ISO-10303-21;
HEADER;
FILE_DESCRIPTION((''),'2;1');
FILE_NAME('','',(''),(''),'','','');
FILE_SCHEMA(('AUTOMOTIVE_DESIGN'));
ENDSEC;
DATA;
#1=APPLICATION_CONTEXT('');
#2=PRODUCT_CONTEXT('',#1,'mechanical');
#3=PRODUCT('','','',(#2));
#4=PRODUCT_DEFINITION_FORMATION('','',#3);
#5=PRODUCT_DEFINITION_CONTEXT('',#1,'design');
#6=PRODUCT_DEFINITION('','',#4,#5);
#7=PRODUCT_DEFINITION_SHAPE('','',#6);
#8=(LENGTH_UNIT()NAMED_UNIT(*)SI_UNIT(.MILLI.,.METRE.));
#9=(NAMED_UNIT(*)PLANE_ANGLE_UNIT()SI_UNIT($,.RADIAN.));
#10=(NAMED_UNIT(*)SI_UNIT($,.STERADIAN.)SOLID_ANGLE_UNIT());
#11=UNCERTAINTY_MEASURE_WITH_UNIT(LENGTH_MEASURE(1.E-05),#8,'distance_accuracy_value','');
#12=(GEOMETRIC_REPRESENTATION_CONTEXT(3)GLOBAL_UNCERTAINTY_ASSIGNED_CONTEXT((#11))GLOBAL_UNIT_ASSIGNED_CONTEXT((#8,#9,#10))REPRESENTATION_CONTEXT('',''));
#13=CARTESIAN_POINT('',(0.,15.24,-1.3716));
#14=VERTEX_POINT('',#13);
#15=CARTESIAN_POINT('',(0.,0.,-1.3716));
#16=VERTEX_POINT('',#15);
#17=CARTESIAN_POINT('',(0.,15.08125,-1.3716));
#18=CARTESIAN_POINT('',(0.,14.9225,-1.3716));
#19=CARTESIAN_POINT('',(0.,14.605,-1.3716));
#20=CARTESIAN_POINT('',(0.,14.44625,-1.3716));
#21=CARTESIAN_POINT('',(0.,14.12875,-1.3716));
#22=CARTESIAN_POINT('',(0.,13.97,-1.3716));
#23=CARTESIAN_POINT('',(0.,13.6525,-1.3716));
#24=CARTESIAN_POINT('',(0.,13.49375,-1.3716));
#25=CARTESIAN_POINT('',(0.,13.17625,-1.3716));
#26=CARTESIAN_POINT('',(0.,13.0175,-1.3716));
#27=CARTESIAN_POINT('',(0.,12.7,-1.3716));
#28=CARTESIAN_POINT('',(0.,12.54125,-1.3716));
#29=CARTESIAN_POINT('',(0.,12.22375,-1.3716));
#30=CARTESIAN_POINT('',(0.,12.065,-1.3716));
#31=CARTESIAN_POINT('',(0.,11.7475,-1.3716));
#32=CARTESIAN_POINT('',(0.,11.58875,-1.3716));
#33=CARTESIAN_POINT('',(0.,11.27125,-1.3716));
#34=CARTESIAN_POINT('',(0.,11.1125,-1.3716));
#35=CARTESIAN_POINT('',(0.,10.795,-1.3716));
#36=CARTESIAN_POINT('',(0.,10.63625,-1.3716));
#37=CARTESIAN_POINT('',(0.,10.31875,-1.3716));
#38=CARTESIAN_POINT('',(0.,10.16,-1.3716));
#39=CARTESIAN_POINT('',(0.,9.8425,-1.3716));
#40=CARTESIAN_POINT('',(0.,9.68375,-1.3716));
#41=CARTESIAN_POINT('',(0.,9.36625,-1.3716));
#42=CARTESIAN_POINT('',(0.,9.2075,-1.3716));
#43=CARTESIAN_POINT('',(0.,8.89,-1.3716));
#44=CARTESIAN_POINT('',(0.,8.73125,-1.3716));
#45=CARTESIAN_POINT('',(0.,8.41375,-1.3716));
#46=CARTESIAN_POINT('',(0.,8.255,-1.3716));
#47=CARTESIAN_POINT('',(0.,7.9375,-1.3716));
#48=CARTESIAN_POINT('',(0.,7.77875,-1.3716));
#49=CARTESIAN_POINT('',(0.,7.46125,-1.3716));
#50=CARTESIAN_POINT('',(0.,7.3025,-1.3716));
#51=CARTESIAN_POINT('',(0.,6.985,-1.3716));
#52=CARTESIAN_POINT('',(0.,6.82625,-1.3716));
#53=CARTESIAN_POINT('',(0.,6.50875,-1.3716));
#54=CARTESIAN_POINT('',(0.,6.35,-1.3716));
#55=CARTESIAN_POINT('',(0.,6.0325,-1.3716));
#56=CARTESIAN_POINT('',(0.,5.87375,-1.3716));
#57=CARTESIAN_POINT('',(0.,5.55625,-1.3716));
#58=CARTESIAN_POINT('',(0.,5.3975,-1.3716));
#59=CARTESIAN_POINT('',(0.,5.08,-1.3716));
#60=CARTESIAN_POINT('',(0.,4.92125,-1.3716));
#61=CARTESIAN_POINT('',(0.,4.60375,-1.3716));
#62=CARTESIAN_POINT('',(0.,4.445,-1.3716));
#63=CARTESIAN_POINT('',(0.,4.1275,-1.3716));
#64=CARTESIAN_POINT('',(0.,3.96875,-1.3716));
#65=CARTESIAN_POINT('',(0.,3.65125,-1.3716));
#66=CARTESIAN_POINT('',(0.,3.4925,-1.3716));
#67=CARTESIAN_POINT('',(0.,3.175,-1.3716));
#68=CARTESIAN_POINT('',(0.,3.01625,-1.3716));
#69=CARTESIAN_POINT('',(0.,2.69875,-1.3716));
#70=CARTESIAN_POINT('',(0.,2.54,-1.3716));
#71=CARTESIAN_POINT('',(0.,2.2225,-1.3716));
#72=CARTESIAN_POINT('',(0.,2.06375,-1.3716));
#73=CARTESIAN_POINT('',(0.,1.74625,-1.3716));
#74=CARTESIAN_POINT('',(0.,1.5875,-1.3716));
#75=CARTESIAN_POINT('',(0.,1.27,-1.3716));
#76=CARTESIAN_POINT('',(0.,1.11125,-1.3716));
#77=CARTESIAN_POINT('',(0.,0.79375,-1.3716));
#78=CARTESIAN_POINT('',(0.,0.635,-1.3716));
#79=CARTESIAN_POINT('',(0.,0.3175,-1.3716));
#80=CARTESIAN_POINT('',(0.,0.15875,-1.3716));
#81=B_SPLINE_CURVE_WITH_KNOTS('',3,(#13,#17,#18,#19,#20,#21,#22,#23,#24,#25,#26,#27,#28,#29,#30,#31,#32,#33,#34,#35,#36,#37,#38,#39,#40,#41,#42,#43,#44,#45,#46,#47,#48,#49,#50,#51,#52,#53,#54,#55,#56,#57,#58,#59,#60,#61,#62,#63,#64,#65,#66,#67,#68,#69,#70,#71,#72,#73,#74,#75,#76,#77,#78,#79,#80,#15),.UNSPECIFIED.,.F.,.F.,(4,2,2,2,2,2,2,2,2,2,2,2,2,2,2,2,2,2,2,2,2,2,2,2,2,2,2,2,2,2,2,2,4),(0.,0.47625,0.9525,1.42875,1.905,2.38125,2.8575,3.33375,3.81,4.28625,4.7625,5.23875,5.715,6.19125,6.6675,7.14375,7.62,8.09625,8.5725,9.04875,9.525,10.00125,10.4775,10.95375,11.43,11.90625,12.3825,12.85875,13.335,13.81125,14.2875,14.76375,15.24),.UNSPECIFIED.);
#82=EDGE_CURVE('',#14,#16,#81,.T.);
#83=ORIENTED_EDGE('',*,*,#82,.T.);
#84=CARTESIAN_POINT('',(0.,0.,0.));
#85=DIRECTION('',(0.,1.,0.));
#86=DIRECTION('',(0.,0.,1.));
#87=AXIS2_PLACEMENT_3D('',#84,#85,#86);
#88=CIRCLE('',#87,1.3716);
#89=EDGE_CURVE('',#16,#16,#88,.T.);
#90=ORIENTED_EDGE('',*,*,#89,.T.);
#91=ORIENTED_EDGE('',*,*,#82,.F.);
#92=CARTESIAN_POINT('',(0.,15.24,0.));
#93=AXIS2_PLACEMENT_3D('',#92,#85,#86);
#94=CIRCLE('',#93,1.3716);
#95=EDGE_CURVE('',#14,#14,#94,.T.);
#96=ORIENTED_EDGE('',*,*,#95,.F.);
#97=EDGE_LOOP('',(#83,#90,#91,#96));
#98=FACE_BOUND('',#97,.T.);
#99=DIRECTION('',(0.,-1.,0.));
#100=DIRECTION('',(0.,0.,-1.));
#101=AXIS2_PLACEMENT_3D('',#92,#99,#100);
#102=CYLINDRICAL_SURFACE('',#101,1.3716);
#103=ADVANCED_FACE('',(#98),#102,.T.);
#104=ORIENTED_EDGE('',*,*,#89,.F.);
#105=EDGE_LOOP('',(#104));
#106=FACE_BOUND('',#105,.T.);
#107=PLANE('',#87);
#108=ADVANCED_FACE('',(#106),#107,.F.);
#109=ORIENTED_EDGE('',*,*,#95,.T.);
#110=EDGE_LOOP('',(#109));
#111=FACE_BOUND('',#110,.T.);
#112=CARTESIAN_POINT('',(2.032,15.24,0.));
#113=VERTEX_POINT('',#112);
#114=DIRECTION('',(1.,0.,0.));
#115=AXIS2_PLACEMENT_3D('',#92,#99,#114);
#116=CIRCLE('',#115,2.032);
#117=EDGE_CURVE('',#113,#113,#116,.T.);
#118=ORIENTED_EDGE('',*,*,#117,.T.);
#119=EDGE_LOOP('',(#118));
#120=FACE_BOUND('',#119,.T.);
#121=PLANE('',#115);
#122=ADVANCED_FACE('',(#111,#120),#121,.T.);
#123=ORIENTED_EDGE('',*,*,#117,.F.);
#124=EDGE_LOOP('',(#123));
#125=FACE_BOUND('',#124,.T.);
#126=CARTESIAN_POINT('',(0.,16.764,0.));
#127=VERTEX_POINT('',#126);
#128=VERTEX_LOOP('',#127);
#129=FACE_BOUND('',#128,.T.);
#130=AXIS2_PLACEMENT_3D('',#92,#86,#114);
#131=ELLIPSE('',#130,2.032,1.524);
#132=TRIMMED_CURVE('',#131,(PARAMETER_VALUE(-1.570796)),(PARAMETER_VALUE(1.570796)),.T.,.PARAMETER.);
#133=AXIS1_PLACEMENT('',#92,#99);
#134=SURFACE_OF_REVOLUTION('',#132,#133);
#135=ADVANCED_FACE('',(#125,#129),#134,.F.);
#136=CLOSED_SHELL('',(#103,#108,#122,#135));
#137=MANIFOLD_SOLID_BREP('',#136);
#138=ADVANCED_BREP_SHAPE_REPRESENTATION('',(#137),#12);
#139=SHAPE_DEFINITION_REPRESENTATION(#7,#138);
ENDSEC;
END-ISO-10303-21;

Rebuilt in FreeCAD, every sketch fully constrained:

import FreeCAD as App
import Part
import Sketcher
Q = App.Units.Quantity

doc = App.newDocument("Part")
body = doc.addObject("PartDesign::Body", "Body")

# Sketch on XZ plane
sketch1 = body.newObject("Sketcher::SketchObject", "Sketch")
sketch1.AttachmentSupport = (doc.getObject("XZ_Plane"), [""])
sketch1.MapMode = "FlatFace"
sketch1.addGeometry(Part.Circle(App.Vector(0, 0, 0), App.Vector(0, 0, 1), 1.4), False)
sketch1.addConstraint([
    Sketcher.Constraint("Coincident", 0, 3, -1, 1),
    Sketcher.Constraint("Diameter", 0, Q("0.108 in")),
])
pad1 = body.newObject("PartDesign::Pad", "Pad")
pad1.Profile = sketch1
pad1.Length = Q("0.6 in")
pad1.Reversed = True

# Sketch on XY plane
sketch2 = body.newObject("Sketcher::SketchObject", "Sketch001")
sketch2.AttachmentSupport = (doc.getObject("XY_Plane"), [""])
sketch2.MapMode = "FlatFace"
sketch2.addGeometry([
    Part.BSplineCurve([App.Vector(0, 16.764, 0), App.Vector(2.032, 16.764, 0), App.Vector(2.032, 15.24, 0)], [3, 3], [4.71238898, 6.283185307], False, 2, [1, 0.707106781, 1], False),
    Part.LineSegment(App.Vector(2.032, 15.24, 0), App.Vector(0, 15.24, 0)),
    Part.LineSegment(App.Vector(0, 15.24, 0), App.Vector(0, 16.764, 0)),
], False)
sketch2.addConstraint([
    Sketcher.Constraint("Block", 0),
    Sketcher.Constraint("Coincident", 0, 2, 1, 1),
    Sketcher.Constraint("Coincident", 1, 2, 2, 1),
    Sketcher.Constraint("Coincident", 2, 2, 0, 1),
    Sketcher.Constraint("Horizontal", 1),
    Sketcher.Constraint("Vertical", 2),
])
revolution = body.newObject("PartDesign::Revolution", "Revolution")
revolution.Profile = sketch2
revolution.ReferenceAxis = (sketch2, ["V_Axis"])
revolution.Angle = 360

doc.recompute()
